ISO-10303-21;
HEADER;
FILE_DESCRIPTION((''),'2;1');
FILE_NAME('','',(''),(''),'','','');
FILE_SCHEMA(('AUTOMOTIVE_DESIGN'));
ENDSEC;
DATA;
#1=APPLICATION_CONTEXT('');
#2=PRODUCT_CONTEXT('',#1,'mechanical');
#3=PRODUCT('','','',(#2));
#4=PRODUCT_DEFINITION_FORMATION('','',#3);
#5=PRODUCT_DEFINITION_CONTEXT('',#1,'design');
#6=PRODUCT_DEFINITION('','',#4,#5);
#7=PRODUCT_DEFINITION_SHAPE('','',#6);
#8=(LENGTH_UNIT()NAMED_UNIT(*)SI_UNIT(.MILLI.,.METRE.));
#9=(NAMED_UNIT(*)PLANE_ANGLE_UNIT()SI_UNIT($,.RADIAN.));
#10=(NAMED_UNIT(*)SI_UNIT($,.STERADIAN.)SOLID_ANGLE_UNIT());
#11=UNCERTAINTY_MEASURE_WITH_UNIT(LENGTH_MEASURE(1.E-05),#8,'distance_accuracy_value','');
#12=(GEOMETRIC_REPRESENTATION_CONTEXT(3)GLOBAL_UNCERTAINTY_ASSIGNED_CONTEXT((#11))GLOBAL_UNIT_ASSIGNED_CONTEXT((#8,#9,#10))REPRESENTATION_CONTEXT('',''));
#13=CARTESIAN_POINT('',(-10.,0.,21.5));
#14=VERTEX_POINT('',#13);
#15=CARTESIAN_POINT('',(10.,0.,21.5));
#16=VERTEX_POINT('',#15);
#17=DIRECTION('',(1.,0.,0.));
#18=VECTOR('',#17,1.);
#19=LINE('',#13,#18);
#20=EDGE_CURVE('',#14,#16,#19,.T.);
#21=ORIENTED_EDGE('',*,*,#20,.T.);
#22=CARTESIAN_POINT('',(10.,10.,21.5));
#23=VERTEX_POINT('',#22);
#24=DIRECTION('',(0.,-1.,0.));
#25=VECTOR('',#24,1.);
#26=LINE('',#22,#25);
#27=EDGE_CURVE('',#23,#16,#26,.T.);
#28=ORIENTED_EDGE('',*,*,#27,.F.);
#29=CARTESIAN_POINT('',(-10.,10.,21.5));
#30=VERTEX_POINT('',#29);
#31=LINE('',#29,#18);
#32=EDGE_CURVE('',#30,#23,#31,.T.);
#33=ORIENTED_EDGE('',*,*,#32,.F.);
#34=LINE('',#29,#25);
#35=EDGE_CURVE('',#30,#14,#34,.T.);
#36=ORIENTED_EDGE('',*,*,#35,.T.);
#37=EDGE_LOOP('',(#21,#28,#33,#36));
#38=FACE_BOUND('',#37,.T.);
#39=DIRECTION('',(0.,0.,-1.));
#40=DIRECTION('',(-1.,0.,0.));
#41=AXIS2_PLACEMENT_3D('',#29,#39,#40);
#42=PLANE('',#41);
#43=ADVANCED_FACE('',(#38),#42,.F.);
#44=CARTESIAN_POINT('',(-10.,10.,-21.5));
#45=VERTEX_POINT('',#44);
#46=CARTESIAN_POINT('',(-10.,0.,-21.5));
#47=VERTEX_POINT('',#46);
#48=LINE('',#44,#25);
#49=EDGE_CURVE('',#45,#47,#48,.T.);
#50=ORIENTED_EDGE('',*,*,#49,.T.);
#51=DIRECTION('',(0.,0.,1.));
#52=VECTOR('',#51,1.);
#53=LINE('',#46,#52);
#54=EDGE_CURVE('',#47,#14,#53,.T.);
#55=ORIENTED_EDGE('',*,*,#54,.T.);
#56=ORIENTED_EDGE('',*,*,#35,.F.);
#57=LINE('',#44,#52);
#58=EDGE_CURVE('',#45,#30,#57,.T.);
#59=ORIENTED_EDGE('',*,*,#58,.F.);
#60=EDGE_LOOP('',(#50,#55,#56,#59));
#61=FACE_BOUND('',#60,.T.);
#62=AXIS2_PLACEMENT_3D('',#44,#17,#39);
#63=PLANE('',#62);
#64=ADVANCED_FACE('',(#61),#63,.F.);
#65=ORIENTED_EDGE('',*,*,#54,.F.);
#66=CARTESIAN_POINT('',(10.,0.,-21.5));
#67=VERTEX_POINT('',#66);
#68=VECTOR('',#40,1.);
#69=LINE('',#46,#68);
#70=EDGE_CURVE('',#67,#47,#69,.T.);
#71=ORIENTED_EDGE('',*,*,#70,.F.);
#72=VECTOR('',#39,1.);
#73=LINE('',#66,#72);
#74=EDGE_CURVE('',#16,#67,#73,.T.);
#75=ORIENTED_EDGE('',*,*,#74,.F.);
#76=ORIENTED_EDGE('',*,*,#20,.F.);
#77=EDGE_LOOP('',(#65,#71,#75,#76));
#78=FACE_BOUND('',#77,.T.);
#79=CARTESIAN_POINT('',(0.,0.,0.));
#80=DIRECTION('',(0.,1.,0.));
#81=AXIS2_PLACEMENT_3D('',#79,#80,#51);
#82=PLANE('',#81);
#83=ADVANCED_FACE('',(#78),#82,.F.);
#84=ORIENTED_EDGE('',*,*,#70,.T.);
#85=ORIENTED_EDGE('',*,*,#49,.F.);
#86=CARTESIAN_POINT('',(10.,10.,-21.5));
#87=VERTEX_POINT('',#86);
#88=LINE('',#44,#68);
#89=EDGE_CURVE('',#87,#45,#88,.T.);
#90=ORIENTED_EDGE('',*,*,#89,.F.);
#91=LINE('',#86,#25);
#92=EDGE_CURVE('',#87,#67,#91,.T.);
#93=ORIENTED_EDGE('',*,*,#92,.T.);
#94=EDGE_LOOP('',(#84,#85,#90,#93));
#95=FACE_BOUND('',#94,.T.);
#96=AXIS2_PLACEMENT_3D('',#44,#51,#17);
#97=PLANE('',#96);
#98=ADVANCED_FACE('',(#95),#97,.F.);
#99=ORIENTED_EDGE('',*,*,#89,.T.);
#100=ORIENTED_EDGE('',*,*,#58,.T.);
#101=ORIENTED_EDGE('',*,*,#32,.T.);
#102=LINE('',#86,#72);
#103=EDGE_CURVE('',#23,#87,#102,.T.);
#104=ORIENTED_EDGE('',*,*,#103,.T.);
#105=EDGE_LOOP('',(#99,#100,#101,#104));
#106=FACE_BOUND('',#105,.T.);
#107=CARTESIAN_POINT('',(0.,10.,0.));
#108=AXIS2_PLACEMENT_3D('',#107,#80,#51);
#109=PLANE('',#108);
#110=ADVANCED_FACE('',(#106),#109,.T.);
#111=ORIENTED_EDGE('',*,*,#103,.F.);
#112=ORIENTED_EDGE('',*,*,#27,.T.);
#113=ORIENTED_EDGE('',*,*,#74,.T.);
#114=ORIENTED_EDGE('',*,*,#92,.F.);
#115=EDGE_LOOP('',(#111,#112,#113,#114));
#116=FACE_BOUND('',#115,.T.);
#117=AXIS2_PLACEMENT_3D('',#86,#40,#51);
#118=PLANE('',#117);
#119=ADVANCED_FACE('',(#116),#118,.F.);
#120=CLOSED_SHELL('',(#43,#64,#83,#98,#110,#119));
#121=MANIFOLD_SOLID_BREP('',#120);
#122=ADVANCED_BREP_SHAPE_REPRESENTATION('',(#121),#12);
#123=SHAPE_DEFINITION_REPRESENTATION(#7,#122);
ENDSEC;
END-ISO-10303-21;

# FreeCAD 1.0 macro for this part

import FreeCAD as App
import Part
import Sketcher
from FreeCAD import Vector

doc = App.newDocument("Part")
body = doc.addObject("PartDesign::Body", "Body")

# Sketch on XZ plane
sketch1 = body.newObject("Sketcher::SketchObject", "Sketch")
sketch1.AttachmentSupport = (doc.getObject("XZ_Plane"), [""])
sketch1.MapMode = "FlatFace"
sketch1.addGeometry([
    Part.LineSegment(Vector(-10, -22, 0), Vector(-10, 22, 0)),
    Part.LineSegment(Vector(-10, 22, 0), Vector(10, 22, 0)),
    Part.LineSegment(Vector(10, 22, 0), Vector(10, -22, 0)),
    Part.LineSegment(Vector(10, -22, 0), Vector(-10, -22, 0)),
], False)
sketch1.addConstraint([
    Sketcher.Constraint("Coincident", 0, 2, 1, 1),
    Sketcher.Constraint("Coincident", 1, 2, 2, 1),
    Sketcher.Constraint("Coincident", 2, 2, 3, 1),
    Sketcher.Constraint("Coincident", 3, 2, 0, 1),
    Sketcher.Constraint("Vertical", 0),
    Sketcher.Constraint("Horizontal", 1),
    Sketcher.Constraint("Vertical", 2),
    Sketcher.Constraint("Horizontal", 3),
    Sketcher.Constraint("Symmetric", 0, 2, 2, 2, -1, 1),
    Sketcher.Constraint("DistanceX", 1, 1, 1, 2, 20.0),
    Sketcher.Constraint("DistanceY", 0, 1, 0, 2, 43.0),
])
pad1 = body.newObject("PartDesign::Pad", "Pad")
pad1.Profile = sketch1
pad1.Length = 10
pad1.Reversed = True

doc.recompute()
